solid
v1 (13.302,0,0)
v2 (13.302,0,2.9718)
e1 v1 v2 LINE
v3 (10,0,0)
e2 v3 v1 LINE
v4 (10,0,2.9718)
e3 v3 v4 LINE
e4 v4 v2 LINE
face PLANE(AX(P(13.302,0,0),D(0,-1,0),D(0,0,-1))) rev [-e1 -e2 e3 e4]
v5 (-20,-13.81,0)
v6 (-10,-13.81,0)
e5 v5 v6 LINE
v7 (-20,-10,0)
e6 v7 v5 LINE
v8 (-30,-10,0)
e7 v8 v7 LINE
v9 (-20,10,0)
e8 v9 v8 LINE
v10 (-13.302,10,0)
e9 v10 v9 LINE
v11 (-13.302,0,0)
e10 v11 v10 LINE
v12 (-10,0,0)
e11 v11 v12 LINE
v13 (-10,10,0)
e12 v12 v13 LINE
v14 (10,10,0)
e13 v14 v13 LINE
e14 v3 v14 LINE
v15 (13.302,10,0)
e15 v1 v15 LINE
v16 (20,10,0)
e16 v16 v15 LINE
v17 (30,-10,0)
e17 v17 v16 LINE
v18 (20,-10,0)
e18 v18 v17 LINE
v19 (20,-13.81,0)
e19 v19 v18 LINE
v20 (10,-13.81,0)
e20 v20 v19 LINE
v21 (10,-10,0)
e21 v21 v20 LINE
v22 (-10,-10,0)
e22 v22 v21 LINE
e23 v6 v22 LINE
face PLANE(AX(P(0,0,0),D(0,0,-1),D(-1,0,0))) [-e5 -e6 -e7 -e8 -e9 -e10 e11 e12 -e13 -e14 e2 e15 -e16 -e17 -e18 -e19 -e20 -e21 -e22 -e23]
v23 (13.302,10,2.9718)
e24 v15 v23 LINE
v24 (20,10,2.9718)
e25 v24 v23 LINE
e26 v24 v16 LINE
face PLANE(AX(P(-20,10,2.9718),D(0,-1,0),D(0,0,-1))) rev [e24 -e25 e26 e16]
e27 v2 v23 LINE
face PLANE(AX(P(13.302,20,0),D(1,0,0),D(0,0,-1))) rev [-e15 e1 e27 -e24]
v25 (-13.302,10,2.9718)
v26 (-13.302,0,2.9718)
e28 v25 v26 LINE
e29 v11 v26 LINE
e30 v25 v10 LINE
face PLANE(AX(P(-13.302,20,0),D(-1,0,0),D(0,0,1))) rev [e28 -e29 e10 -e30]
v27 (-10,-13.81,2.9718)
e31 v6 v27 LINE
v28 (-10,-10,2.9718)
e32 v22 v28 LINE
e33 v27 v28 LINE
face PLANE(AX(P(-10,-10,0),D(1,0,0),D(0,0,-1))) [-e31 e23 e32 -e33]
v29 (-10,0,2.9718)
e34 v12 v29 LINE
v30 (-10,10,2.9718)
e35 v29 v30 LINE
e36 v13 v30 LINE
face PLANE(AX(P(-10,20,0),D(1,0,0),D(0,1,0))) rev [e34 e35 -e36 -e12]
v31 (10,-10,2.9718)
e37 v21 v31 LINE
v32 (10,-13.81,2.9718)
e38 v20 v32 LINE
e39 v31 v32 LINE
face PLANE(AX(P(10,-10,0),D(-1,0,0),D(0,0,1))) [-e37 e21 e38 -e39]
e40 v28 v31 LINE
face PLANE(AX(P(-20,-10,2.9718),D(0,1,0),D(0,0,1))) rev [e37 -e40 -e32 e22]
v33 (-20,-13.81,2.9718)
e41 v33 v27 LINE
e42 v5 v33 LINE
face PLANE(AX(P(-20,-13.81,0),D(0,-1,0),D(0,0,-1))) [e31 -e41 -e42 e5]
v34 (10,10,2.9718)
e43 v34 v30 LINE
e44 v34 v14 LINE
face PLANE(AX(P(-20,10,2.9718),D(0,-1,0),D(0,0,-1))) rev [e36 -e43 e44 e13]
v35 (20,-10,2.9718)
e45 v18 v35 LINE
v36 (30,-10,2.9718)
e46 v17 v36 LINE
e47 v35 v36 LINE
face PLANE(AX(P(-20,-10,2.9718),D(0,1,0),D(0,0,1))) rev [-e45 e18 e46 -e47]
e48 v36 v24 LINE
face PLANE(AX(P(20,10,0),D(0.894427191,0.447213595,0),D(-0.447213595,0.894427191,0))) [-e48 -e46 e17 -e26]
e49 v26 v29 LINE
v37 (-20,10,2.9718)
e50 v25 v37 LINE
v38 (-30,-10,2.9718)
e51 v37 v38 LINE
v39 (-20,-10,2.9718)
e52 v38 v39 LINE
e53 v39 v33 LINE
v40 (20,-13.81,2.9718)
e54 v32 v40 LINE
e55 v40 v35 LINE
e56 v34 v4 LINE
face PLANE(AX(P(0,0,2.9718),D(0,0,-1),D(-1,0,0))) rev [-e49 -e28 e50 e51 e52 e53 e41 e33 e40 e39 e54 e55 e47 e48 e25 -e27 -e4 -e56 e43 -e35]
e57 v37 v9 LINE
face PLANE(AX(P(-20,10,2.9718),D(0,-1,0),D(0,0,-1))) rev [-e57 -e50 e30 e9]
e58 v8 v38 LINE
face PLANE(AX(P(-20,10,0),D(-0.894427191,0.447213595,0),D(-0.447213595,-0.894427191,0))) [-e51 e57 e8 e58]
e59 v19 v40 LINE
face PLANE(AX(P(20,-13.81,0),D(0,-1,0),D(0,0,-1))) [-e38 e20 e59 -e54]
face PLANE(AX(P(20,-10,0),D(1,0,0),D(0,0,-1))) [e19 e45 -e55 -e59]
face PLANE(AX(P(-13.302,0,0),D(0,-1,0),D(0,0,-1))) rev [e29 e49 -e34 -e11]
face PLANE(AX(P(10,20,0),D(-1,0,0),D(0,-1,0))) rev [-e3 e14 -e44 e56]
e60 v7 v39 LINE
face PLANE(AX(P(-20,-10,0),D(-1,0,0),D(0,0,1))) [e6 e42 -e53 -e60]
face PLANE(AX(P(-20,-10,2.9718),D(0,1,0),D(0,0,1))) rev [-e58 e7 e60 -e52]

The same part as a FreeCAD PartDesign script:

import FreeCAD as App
import Part
import Sketcher
from FreeCAD import Vector

doc = App.newDocument("Part")
body = doc.addObject("PartDesign::Body", "Body")

# Sketch on XY plane
sketch1 = body.newObject("Sketcher::SketchObject", "Sketch")
sketch1.AttachmentSupport = (doc.getObject("XY_Plane"), [""])
sketch1.MapMode = "FlatFace"
sketch1.addGeometry([
    Part.LineSegment(Vector(-20, 10, 0), Vector(-20, -10, 0)),
    Part.LineSegment(Vector(-20, -10, 0), Vector(20, -10, 0)),
    Part.LineSegment(Vector(20, -10, 0), Vector(20, 10, 0)),
    Part.LineSegment(Vector(20, 10, 0), Vector(-20, 10, 0)),
], False)
sketch1.addConstraint([
    Sketcher.Constraint("Coincident", 0, 2, 1, 1),
    Sketcher.Constraint("Coincident", 1, 2, 2, 1),
    Sketcher.Constraint("Coincident", 2, 2, 3, 1),
    Sketcher.Constraint("Coincident", 3, 2, 0, 1),
    Sketcher.Constraint("Vertical", 0),
    Sketcher.Constraint("Horizontal", 1),
    Sketcher.Constraint("Vertical", 2),
    Sketcher.Constraint("Horizontal", 3),
    Sketcher.Constraint("Symmetric", 0, 2, 2, 2, -1, 1),
    Sketcher.Constraint("DistanceX", 1, 1, 1, 2, 40.0),
    Sketcher.Constraint("DistanceY", 0, 2, 0, 1, 20.0),
])
pad1 = body.newObject("PartDesign::Pad", "Pad")
pad1.Profile = sketch1
pad1.Length = 2.9718

# Sketch on XY plane
sketch2 = body.newObject("Sketcher::SketchObject", "Sketch001")
sketch2.AttachmentSupport = (doc.getObject("XY_Plane"), [""])
sketch2.MapMode = "FlatFace"
sketch2.AttachmentOffset = App.Placement(Vector(0, 0, 2.9718), App.Rotation())
sketch2.addGeometry([
    Part.LineSegment(Vector(-20, 10, 0), Vector(-30, -10, 0)),  # 0
    Part.LineSegment(Vector(-30, -10, 0), Vector(-20, -10, 0)),  # 1
    Part.LineSegment(Vector(-20, -10, 0), Vector(-20, 10, 0)),  # 2
    Part.LineSegment(Vector(20, 10, 0), Vector(20, -10, 0)),  # 3
    Part.LineSegment(Vector(20, -10, 0), Vector(30, -10, 0)),  # 4
    Part.LineSegment(Vector(30, -10, 0), Vector(20, 10, 0)),  # 5
], False)
sketch2.addConstraint([
    Sketcher.Constraint("Coincident", 0, 2, 1, 1),
    Sketcher.Constraint("Coincident", 1, 2, 2, 1),
    Sketcher.Constraint("Coincident", 2, 2, 0, 1),
    Sketcher.Constraint("Coincident", 3, 2, 4, 1),
    Sketcher.Constraint("Coincident", 4, 2, 5, 1),
    Sketcher.Constraint("Coincident", 5, 2, 3, 1),
    Sketcher.Constraint("Horizontal", 1),
    Sketcher.Constraint("Vertical", 2),
    Sketcher.Constraint("Vertical", 3),
    Sketcher.Constraint("Horizontal", 4),
    Sketcher.Constraint("Symmetric", 2, 2, 3, 2, -1, 1),
    Sketcher.Constraint("Symmetric", 0, 2, 4, 2, -2),
    Sketcher.Constraint("Horizontal", 2, 2, 5, 2),
    Sketcher.Constraint("DistanceX", 1, 1, 1, 2, 10.0),
    Sketcher.Constraint("DistanceY", 2, 1, 2, 2, 20.0),
    Sketcher.Constraint("DistanceX", 0, 2, -1, 1, 30.0),
])
pad2 = body.newObject("PartDesign::Pad", "Pad001")
pad2.Profile = sketch2
pad2.Length = 2.9718
pad2.Reversed = True

# Sketch on XY plane
sketch3 = body.newObject("Sketcher::SketchObject", "Sketch002")
sketch3.AttachmentSupport = (doc.getObject("XY_Plane"), [""])
sketch3.MapMode = "FlatFace"
sketch3.AttachmentOffset = App.Placement(Vector(0, 0, 2.9718), App.Rotation())
sketch3.addGeometry([
    Part.LineSegment(Vector(-13.3, 20, 0), Vector(-13.3, 0, 0)),  # 0
    Part.LineSegment(Vector(-13.3, 0, 0), Vector(-10, 0, 0)),  # 1
    Part.LineSegment(Vector(-10, 0, 0), Vector(-10, 20, 0)),  # 2
    Part.LineSegment(Vector(-10, 20, 0), Vector(-13.3, 20, 0)),  # 3
    Part.LineSegment(Vector(10, 20, 0), Vector(10, 0, 0)),  # 4
    Part.LineSegment(Vector(10, 0, 0), Vector(13.3, 0, 0)),  # 5
    Part.LineSegment(Vector(13.3, 0, 0), Vector(13.3, 20, 0)),  # 6
    Part.LineSegment(Vector(13.3, 20, 0), Vector(10, 20, 0)),  # 7
], False)
sketch3.addConstraint([
    Sketcher.Constraint("Coincident", 0, 2, 1, 1),
    Sketcher.Constraint("Coincident", 1, 2, 2, 1),
    Sketcher.Constraint("Coincident", 2, 2, 3, 1),
    Sketcher.Constraint("Coincident", 3, 2, 0, 1),
    Sketcher.Constraint("Coincident", 4, 2, 5, 1),
    Sketcher.Constraint("Coincident", 5, 2, 6, 1),
    Sketcher.Constraint("Coincident", 6, 2, 7, 1),
    Sketcher.Constraint("Coincident", 7, 2, 4, 1),
    Sketcher.Constraint("Vertical", 0),
    Sketcher.Constraint("Horizontal", 1),
    Sketcher.Constraint("Vertical", 2),
    Sketcher.Constraint("Horizontal", 3),
    Sketcher.Constraint("Vertical", 4),
    Sketcher.Constraint("Horizontal", 5),
    Sketcher.Constraint("Vertical", 6),
    Sketcher.Constraint("Horizontal", 7),
    Sketcher.Constraint("Symmetric", 1, 2, 4, 2, -1, 1),
    Sketcher.Constraint("Symmetric", 0, 2, 5, 2, -2),
    Sketcher.Constraint("Horizontal", 3, 2, 6, 2),
    Sketcher.Constraint("DistanceY", 0, 2, 0, 1, 20.0),
    Sketcher.Constraint("DistanceX", 1, 2, -1, 1, 10.0),
    Sketcher.Constraint("DistanceX", 1, 1, 1, 2, 3.302),
])
pocket1 = body.newObject("PartDesign::Pocket", "Pocket")
pocket1.Profile = sketch3
pocket1.Type = "ThroughAll"

# Sketch on XY plane
sketch4 = body.newObject("Sketcher::SketchObject", "Sketch003")
sketch4.AttachmentSupport = (doc.getObject("XY_Plane"), [""])
sketch4.MapMode = "FlatFace"
sketch4.AttachmentOffset = App.Placement(Vector(0, 0, 2.9718), App.Rotation())
sketch4.addGeometry([
    Part.LineSegment(Vector(-20, -10, 0), Vector(-20, -13.8, 0)),  # 0
    Part.LineSegment(Vector(-20, -13.8, 0), Vector(-10, -13.8, 0)),  # 1
    Part.LineSegment(Vector(-10, -13.8, 0), Vector(-10, -10, 0)),  # 2
    Part.LineSegment(Vector(-10, -10, 0), Vector(-20, -10, 0)),  # 3
    Part.LineSegment(Vector(10, -10, 0), Vector(10, -13.8, 0)),  # 4
    Part.LineSegment(Vector(10, -13.8, 0), Vector(20, -13.8, 0)),  # 5
    Part.LineSegment(Vector(20, -13.8, 0), Vector(20, -10, 0)),  # 6
    Part.LineSegment(Vector(20, -10, 0), Vector(10, -10, 0)),  # 7
], False)
sketch4.addConstraint([
    Sketcher.Constraint("Coincident", 0, 2, 1, 1),
    Sketcher.Constraint("Coincident", 1, 2, 2, 1),
    Sketcher.Constraint("Coincident", 2, 2, 3, 1),
    Sketcher.Constraint("Coincident", 3, 2, 0, 1),
    Sketcher.Constraint("Coincident", 4, 2, 5, 1),
    Sketcher.Constraint("Coincident", 5, 2, 6, 1),
    Sketcher.Constraint("Coincident", 6, 2, 7, 1),
    Sketcher.Constraint("Coincident", 7, 2, 4, 1),
    Sketcher.Constraint("Vertical", 0),
    Sketcher.Constraint("Horizontal", 1),
    Sketcher.Constraint("Vertical", 2),
    Sketcher.Constraint("Horizontal", 3),
    Sketcher.Constraint("Vertical", 4),
    Sketcher.Constraint("Horizontal", 5),
    Sketcher.Constraint("Vertical", 6),
    Sketcher.Constraint("Horizontal", 7),
    Sketcher.Constraint("Symmetric", 1, 2, 4, 2, -2),
    Sketcher.Constraint("Symmetric", 3, 2, 6, 2, -2),
    Sketcher.Constraint("DistanceX", 1, 1, 1, 2, 10.0),
    Sketcher.Constraint("DistanceX", 0, 2, -1, 1, 20.0),
    Sketcher.Constraint("DistanceY", 2, 2, -1, 1, 10.0),
    Sketcher.Constraint("DistanceY", 0, 2, 0, 1, 3.81),
])
pad3 = body.newObject("PartDesign::Pad", "Pad002")
pad3.Profile = sketch4
pad3.Length = 2.9718
pad3.Reversed = True

doc.recompute()
